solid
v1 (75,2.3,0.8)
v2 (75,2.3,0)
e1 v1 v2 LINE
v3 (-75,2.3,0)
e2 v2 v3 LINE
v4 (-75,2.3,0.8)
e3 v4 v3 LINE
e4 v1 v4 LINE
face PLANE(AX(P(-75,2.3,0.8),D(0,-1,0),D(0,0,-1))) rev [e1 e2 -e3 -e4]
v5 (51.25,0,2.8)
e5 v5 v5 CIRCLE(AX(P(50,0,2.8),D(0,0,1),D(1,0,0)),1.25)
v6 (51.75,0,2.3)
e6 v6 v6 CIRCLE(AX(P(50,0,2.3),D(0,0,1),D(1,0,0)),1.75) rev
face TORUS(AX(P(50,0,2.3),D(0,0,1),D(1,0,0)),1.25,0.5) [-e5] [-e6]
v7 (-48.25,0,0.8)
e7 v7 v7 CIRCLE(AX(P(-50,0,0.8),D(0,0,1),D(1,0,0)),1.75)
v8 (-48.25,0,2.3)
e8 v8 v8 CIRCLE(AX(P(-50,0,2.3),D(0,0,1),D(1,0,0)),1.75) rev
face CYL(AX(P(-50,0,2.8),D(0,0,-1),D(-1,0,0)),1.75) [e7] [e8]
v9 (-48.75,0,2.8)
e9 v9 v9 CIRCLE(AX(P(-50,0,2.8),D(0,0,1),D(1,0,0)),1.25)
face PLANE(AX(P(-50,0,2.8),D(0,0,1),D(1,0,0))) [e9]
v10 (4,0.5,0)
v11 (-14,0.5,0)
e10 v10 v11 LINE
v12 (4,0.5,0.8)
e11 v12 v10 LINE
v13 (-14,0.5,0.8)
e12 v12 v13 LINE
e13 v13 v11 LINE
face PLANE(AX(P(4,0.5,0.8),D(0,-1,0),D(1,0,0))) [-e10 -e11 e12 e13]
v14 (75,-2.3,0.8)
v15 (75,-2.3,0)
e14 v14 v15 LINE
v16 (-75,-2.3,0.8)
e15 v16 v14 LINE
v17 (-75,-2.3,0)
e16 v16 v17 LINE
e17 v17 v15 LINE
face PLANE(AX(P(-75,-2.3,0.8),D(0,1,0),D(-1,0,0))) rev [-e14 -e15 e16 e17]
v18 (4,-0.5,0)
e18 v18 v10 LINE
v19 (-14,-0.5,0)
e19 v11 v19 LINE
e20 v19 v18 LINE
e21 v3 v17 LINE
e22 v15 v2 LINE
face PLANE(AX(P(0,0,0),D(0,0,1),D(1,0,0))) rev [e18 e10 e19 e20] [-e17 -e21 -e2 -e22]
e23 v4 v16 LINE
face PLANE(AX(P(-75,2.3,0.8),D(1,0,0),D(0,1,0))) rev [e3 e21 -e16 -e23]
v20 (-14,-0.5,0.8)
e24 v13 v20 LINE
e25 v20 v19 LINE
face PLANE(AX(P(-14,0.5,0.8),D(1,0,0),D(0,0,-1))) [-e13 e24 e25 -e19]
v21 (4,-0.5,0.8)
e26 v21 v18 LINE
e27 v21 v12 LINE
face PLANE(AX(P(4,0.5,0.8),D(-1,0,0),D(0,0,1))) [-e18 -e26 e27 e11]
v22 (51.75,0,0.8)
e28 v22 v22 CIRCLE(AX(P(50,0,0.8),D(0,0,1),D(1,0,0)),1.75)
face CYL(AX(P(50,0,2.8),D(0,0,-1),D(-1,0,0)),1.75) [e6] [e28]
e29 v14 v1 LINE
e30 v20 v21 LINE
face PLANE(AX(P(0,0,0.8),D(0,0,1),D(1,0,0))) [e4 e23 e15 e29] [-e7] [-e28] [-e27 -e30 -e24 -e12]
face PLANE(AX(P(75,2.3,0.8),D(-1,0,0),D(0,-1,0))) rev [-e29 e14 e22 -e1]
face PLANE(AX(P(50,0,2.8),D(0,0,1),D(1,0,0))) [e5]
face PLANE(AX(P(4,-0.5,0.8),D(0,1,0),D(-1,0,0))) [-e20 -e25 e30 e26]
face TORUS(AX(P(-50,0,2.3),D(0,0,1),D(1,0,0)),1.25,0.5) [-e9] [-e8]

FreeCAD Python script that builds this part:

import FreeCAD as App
import Part
import Sketcher
Q = App.Units.Quantity


def edges_at(feature, points):
    """Names of the edges that pass closest to the given points."""
    edges = feature.Shape.Edges
    near = lambda p: min(range(len(edges)), key=lambda i: edges[i].distToShape(Part.Vertex(*p))[0])
    return sorted({f"Edge{near(p) + 1}" for p in points})

doc = App.newDocument("Part")
body = doc.addObject("PartDesign::Body", "Body")

# Sketch on XY plane
sketch1 = body.newObject("Sketcher::SketchObject", "Sketch")
sketch1.AttachmentSupport = (doc.getObject("XY_Plane"), [""])
sketch1.MapMode = "FlatFace"
sketch1.addGeometry([
    Part.LineSegment(App.Vector(-75, 2.3, 0), App.Vector(-75, -2.3, 0)),  # 0
    Part.LineSegment(App.Vector(-75, -2.3, 0), App.Vector(75, -2.3, 0)),  # 1
    Part.LineSegment(App.Vector(75, -2.3, 0), App.Vector(75, 2.3, 0)),  # 2
    Part.LineSegment(App.Vector(75, 2.3, 0), App.Vector(-75, 2.3, 0)),  # 3
    Part.LineSegment(App.Vector(4, -0.5, 0), App.Vector(-14, -0.5, 0)),  # 4
    Part.LineSegment(App.Vector(-14, -0.5, 0), App.Vector(-14, 0.5, 0)),  # 5
    Part.LineSegment(App.Vector(-14, 0.5, 0), App.Vector(4, 0.5, 0)),  # 6
    Part.LineSegment(App.Vector(4, 0.5, 0), App.Vector(4, -0.5, 0)),  # 7
], False)
sketch1.addConstraint([
    Sketcher.Constraint("Coincident", 0, 2, 1, 1),
    Sketcher.Constraint("Coincident", 1, 2, 2, 1),
    Sketcher.Constraint("Coincident", 2, 2, 3, 1),
    Sketcher.Constraint("Coincident", 3, 2, 0, 1),
    Sketcher.Constraint("Coincident", 4, 2, 5, 1),
    Sketcher.Constraint("Coincident", 5, 2, 6, 1),
    Sketcher.Constraint("Coincident", 6, 2, 7, 1),
    Sketcher.Constraint("Coincident", 7, 2, 4, 1),
    Sketcher.Constraint("Vertical", 0),
    Sketcher.Constraint("Horizontal", 1),
    Sketcher.Constraint("Vertical", 2),
    Sketcher.Constraint("Horizontal", 3),
    Sketcher.Constraint("Horizontal", 4),
    Sketcher.Constraint("Vertical", 5),
    Sketcher.Constraint("Horizontal", 6),
    Sketcher.Constraint("Vertical", 7),
    Sketcher.Constraint("Symmetric", 0, 2, 2, 2, -1, 1),
    Sketcher.Constraint("DistanceX", 1, 1, 1, 2, Q("150 mm")),
    Sketcher.Constraint("DistanceX", 4, 2, 4, 1, Q("18 mm")),
    Sketcher.Constraint("DistanceY", 5, 1, 5, 2, Q("1 mm")),
    Sketcher.Constraint("DistanceY", 0, 2, 0, 1, Q("4.6 mm")),
    Sketcher.Constraint("DistanceX", 4, 2, -1, 1, Q("14 mm")),
    Sketcher.Constraint("DistanceY", 4, 2, -1, 1, Q("0.5 mm")),
])
pad1 = body.newObject("PartDesign::Pad", "Pad")
pad1.Profile = sketch1
pad1.Length = 0.8

# Sketch on XY plane
sketch2 = body.newObject("Sketcher::SketchObject", "Sketch001")
sketch2.AttachmentSupport = (doc.getObject("XY_Plane"), [""])
sketch2.MapMode = "FlatFace"
sketch2.AttachmentOffset = App.Placement(App.Vector(0, 0, 0.8), App.Rotation())
sketch2.addGeometry([
    Part.Circle(App.Vector(-50, 0, 0), App.Vector(0, 0, 1), 1.75),
    Part.Circle(App.Vector(50, 0, 0), App.Vector(0, 0, 1), 1.75),
], False)
sketch2.addConstraint([
    Sketcher.Constraint("Equal", 0, 1),
    Sketcher.Constraint("Symmetric", 0, 3, 1, 3, -1, 1),
    Sketcher.Constraint("PointOnObject", 0, 3, -1),
    Sketcher.Constraint("Diameter", 0, Q("3.5 mm")),
    Sketcher.Constraint("DistanceX", 0, 3, -1, 1, Q("50 mm")),
])
pad2 = body.newObject("PartDesign::Pad", "Pad001")
pad2.Profile = sketch2
pad2.Length = 2
doc.recompute()

fillet = body.newObject("PartDesign::Fillet", "Fillet")
fillet.Base = (pad2, edges_at(pad2, [(-51.75, 0, 2.8), (48.25, 0, 2.8)]))
fillet.Radius = 0.5

doc.recompute()
